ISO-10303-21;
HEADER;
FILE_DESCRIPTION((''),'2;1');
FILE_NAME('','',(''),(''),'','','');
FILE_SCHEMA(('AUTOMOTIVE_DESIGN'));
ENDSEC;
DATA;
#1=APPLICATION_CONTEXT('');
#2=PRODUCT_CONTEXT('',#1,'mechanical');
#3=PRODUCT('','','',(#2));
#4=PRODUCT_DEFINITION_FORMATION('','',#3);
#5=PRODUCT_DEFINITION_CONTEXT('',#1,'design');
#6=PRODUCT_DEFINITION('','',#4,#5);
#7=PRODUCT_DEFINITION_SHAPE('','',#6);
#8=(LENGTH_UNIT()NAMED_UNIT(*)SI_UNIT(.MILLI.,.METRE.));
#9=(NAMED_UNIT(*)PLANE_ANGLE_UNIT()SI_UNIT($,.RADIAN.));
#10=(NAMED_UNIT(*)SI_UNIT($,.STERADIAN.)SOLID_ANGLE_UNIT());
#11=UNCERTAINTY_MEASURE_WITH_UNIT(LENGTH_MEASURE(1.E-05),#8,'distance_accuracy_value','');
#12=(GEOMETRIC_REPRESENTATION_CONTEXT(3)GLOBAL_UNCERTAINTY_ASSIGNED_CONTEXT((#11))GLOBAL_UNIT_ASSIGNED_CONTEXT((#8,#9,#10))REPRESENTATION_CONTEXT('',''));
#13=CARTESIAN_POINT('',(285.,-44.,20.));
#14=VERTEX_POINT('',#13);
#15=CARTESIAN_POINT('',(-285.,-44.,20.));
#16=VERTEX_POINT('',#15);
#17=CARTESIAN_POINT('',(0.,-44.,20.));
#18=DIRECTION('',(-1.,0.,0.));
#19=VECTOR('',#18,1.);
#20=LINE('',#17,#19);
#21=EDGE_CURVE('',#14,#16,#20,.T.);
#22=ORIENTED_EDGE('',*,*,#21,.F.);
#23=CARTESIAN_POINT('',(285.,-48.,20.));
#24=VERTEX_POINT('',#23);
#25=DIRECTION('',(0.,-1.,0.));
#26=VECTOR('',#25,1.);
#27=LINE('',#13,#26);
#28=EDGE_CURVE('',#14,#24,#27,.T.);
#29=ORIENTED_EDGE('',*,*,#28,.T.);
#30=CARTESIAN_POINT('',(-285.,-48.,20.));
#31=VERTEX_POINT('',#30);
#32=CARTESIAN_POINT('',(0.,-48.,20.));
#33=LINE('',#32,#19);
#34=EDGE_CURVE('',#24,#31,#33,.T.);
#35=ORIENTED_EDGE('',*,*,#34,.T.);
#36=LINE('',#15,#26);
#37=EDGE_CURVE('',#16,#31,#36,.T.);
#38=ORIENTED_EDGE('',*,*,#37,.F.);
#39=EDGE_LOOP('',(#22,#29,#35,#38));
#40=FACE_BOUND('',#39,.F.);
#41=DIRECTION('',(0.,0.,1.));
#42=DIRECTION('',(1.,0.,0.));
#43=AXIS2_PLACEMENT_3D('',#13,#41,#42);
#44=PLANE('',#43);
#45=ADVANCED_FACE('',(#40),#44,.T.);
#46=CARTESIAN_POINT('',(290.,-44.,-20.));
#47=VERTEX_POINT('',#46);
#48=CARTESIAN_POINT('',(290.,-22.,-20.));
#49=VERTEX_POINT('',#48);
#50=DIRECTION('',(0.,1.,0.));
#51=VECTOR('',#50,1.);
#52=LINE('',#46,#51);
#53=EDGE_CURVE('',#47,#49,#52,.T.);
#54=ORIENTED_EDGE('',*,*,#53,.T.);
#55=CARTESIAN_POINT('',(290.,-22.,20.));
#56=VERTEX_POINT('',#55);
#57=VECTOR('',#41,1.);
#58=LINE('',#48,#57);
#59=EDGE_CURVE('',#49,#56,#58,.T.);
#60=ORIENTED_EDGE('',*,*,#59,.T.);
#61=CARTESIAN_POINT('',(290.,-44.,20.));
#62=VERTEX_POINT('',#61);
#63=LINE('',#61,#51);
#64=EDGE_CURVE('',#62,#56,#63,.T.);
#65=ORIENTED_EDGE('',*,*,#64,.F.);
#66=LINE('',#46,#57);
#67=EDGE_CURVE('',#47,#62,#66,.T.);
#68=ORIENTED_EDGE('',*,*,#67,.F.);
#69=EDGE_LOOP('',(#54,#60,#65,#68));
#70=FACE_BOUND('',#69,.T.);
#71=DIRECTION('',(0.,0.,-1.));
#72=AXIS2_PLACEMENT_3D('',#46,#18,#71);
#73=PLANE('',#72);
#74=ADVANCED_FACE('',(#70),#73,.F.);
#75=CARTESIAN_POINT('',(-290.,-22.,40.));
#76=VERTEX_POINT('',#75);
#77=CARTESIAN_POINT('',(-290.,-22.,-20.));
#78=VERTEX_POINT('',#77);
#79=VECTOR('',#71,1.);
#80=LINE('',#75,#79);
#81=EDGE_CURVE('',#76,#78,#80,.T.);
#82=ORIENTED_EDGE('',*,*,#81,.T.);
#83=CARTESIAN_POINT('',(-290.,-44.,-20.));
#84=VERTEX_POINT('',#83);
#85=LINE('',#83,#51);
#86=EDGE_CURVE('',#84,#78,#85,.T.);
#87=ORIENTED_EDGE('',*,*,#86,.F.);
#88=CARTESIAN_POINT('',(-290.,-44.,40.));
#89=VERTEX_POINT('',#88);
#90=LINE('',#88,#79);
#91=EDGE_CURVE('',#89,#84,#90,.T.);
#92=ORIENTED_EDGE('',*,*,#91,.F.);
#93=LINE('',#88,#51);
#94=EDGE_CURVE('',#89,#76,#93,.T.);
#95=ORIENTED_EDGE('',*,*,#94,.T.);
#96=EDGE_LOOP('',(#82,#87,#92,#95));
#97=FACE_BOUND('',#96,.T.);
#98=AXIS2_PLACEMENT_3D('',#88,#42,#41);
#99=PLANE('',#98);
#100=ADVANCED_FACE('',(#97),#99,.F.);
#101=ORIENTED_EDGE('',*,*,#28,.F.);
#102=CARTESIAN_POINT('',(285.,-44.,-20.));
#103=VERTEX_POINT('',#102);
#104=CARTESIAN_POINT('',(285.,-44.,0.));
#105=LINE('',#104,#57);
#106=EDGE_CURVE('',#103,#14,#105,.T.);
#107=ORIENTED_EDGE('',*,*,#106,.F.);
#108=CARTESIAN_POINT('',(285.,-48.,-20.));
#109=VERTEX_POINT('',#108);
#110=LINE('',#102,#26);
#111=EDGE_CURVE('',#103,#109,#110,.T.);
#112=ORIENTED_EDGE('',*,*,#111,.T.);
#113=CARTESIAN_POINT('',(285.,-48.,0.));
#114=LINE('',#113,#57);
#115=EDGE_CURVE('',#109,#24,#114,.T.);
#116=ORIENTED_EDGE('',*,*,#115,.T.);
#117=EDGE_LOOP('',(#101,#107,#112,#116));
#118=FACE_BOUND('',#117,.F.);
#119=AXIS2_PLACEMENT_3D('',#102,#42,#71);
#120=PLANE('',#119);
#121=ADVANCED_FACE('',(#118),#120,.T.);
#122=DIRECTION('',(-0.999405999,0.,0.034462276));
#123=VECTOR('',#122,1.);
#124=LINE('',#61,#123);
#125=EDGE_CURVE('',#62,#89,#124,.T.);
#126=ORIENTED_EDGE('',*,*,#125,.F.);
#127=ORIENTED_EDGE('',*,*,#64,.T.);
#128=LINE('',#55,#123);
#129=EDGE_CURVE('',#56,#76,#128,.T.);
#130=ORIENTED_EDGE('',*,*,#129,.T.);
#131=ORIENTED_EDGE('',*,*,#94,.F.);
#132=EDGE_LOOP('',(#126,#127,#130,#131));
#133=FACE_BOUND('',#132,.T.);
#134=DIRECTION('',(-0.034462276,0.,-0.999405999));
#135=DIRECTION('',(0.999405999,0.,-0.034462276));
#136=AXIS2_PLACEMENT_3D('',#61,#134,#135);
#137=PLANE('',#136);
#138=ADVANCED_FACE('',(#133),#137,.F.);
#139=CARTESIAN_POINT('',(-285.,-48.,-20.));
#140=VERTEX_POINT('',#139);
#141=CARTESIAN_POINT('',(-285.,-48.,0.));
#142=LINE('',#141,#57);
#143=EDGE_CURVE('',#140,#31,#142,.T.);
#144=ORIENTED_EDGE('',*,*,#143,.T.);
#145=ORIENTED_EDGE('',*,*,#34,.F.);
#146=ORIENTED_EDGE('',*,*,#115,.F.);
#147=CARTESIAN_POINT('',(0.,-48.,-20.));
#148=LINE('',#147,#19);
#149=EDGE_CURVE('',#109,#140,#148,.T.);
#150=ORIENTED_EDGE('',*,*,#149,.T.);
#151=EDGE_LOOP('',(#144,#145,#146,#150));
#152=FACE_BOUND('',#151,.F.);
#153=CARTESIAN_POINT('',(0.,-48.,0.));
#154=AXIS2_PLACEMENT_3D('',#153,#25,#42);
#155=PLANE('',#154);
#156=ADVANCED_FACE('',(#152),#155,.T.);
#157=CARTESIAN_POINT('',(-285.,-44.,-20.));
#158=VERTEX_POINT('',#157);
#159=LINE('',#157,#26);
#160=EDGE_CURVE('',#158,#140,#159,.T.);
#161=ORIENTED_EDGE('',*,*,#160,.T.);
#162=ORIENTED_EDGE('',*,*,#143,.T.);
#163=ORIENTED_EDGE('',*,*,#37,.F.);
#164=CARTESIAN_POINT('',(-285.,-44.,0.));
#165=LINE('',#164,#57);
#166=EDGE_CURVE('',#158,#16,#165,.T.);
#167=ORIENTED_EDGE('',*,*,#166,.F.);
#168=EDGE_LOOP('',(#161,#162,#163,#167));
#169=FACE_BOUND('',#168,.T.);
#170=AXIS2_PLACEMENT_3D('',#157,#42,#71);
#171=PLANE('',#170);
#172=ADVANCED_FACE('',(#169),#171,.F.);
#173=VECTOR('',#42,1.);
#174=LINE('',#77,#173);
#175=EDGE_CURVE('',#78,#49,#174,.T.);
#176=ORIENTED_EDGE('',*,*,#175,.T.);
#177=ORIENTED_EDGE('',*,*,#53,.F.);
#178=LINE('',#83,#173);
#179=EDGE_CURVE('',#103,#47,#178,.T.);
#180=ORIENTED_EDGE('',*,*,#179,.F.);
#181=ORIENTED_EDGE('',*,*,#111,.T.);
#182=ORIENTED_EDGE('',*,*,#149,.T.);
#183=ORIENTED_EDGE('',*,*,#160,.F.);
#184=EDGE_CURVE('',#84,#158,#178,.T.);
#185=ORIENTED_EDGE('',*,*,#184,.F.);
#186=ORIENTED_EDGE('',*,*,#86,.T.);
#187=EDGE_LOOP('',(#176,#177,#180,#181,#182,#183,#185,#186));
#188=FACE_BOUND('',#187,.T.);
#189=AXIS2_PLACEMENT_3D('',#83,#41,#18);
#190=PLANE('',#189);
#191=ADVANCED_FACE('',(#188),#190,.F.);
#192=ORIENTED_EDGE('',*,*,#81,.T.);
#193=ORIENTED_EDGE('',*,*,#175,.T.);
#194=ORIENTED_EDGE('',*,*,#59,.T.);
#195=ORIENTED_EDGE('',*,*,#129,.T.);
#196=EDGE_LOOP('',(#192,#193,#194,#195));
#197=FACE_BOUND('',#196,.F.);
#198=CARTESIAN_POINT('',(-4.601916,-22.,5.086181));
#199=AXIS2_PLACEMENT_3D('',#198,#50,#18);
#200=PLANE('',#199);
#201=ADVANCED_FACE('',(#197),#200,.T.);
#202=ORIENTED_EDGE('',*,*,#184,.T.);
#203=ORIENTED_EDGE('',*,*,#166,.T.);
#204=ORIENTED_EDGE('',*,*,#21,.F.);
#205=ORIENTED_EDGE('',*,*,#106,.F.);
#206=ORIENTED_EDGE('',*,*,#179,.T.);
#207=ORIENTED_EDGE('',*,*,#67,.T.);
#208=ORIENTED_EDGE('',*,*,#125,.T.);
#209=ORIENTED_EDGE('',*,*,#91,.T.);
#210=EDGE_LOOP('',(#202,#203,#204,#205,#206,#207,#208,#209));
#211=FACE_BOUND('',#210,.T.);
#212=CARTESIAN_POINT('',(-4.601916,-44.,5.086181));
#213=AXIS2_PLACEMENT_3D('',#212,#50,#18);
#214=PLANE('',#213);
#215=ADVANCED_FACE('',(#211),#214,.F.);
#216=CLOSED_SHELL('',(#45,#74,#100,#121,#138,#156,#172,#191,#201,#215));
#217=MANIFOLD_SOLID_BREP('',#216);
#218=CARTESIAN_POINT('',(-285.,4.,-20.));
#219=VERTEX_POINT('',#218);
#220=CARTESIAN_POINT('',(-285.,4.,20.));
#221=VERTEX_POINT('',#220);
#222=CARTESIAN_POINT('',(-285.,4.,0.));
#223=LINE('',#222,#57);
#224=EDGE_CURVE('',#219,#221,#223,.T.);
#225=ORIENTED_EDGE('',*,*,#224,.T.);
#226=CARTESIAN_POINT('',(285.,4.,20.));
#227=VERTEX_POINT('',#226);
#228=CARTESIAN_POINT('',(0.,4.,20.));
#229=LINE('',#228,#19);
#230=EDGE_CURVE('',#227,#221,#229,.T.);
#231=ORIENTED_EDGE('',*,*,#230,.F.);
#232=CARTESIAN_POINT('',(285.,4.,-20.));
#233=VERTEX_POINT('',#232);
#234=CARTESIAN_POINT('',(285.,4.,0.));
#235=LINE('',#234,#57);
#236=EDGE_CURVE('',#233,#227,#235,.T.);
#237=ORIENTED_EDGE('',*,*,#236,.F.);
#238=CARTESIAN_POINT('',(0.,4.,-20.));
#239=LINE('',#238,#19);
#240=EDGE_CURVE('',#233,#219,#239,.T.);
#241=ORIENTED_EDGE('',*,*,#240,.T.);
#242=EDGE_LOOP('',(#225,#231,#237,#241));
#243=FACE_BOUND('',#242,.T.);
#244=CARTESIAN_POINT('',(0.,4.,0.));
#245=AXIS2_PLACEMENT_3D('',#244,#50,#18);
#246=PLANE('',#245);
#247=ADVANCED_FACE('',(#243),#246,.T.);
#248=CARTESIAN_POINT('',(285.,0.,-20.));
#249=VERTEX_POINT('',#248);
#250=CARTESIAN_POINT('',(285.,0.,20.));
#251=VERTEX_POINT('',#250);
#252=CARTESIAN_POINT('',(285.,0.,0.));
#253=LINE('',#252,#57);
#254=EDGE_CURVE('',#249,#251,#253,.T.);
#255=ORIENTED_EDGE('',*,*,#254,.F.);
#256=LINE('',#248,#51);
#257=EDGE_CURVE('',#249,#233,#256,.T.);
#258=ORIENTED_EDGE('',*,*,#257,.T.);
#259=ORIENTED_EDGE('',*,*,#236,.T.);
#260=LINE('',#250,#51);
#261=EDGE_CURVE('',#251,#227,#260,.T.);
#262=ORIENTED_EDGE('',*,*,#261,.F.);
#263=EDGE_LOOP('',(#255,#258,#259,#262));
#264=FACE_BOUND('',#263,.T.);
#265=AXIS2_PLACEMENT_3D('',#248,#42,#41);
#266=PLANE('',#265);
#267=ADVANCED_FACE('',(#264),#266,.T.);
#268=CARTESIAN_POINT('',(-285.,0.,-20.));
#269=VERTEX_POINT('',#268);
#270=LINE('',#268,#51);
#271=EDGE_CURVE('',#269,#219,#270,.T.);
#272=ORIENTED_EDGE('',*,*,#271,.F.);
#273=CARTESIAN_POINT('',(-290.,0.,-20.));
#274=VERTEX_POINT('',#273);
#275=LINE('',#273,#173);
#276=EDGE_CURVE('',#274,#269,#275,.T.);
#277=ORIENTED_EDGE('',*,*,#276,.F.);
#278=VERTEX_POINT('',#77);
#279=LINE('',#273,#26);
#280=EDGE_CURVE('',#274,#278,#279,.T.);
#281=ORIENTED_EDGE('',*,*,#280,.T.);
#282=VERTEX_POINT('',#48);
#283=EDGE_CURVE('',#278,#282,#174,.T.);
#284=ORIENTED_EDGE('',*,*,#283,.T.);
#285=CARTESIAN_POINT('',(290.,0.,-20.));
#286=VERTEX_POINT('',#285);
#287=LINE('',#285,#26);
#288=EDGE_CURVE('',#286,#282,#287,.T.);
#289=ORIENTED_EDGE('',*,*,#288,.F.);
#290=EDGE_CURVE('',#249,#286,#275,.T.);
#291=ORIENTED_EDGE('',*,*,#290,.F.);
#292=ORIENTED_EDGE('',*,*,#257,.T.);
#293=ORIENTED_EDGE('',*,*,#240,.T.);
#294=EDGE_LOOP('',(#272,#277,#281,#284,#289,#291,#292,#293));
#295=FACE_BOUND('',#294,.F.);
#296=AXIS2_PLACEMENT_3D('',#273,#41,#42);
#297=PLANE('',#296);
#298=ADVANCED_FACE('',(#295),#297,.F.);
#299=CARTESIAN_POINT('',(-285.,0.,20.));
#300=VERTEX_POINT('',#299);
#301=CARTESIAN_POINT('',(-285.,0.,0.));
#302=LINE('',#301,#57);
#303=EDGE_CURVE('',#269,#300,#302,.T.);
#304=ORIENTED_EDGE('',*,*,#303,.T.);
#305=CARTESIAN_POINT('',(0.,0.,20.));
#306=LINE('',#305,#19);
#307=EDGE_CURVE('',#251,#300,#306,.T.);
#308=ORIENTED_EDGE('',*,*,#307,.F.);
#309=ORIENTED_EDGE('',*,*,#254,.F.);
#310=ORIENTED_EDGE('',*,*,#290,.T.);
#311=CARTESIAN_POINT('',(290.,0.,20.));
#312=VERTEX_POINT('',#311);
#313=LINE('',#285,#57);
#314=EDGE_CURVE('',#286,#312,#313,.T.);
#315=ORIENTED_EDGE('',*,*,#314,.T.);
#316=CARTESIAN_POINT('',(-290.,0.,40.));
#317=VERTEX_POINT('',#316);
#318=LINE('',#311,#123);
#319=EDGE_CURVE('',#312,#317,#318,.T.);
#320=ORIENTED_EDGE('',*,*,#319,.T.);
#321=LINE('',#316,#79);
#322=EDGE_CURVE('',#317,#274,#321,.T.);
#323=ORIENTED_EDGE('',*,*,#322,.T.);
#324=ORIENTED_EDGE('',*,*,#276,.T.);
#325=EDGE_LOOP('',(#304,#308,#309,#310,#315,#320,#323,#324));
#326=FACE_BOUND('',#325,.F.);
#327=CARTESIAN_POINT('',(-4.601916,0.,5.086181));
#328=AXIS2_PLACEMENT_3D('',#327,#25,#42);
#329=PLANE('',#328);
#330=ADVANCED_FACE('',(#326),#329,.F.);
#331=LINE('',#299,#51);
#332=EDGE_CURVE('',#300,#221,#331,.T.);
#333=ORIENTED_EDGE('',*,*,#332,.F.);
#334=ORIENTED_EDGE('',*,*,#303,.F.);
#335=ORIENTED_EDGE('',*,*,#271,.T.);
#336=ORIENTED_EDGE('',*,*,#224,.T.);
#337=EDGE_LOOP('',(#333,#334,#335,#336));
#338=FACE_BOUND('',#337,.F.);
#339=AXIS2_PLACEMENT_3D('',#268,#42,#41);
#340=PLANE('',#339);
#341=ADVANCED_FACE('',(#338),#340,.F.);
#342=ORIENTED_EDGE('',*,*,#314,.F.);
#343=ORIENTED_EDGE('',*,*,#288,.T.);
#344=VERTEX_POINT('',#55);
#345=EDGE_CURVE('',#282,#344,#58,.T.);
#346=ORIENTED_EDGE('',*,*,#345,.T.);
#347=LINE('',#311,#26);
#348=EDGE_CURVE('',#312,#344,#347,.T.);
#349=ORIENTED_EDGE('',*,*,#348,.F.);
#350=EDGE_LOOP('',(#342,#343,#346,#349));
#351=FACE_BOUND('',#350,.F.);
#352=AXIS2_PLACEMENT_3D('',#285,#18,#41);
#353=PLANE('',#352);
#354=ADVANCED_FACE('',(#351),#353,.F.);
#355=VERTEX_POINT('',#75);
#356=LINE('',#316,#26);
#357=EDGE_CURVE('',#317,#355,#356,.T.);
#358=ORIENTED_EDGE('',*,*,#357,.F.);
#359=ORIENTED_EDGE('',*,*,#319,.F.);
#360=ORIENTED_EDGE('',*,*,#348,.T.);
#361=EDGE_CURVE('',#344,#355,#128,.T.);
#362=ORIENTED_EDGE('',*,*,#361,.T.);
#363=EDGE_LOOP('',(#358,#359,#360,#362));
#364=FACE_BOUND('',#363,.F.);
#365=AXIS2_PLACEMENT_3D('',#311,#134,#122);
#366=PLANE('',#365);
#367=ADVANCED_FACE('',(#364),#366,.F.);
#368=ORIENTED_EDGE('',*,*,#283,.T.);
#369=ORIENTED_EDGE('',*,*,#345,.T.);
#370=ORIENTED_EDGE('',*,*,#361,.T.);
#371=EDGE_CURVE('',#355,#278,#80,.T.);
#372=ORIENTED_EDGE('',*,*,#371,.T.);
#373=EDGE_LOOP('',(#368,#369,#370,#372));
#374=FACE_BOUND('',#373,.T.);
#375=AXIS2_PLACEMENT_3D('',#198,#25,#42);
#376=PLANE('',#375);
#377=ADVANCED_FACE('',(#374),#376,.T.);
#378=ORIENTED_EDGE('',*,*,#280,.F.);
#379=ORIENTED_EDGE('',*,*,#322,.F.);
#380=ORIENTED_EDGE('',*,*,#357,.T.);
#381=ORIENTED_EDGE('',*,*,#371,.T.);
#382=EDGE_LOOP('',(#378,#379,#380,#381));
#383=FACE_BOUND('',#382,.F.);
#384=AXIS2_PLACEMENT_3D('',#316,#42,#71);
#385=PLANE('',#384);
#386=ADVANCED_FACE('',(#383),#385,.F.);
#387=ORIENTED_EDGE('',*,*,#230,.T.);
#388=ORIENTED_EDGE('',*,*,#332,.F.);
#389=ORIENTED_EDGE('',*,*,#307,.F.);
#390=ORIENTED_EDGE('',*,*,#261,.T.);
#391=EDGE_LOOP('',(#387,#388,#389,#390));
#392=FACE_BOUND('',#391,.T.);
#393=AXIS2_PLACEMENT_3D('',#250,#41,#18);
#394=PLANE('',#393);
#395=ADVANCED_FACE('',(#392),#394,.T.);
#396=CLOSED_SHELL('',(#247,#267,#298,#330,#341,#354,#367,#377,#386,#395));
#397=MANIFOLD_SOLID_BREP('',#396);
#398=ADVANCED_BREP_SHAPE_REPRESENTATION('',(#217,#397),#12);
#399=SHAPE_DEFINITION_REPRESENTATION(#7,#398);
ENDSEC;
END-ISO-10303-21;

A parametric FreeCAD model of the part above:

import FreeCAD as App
import Part
import Sketcher
Q = App.Units.Quantity


def add_polygon(sketch, points):
    """Adds a closed chain of lines whose ends are joined by coincident constraints."""
    first, n = sketch.GeometryCount, len(points)
    for a, b in zip(points, points[1:] + points[:1]):
        sketch.addGeometry(Part.LineSegment(App.Vector(*a, 0), App.Vector(*b, 0)), False)
    for i in range(n):
        sketch.addConstraint(Sketcher.Constraint("Coincident", first + i, 2, first + (i + 1) % n, 1))

doc = App.newDocument("Part")
params = doc.addObject("Spreadsheet::Sheet", "Params")
for row, (alias, value) in enumerate([
    ("sketch1_width", "580 mm"),
    ("sketch1_height", "60 mm"),
    ("sketch1_height2", "40 mm"),
    ("pad1_length", "22 mm"),
    ("sketch2_width", "570 mm"),
    ("sketch2_height", "40 mm"),
    ("pad2_length", "4 mm"),
], start=1):
    params.set(f"A{row}", alias)
    params.set(f"B{row}", "=" + value)
    params.setAlias(f"B{row}", alias)

body = doc.addObject("PartDesign::Body", "Body")

sketch1 = body.newObject("Sketcher::SketchObject", "Sketch")
sketch1.AttachmentSupport = (doc.getObject("XZ_Plane"), [""])
sketch1.MapMode = "FlatFace"
add_polygon(sketch1, [(290, 20), (-290, 40), (-290, -20), (290, -20)])
sketch1.addConstraint(Sketcher.Constraint("Vertical", 1))
sketch1.addConstraint(Sketcher.Constraint("Horizontal", 2))
sketch1.addConstraint(Sketcher.Constraint("Vertical", 3))
sketch1.addConstraint(Sketcher.Constraint("Symmetric", 1, 2, 3, 2, -1, 1))
sketch1.addConstraint(Sketcher.Constraint("DistanceX", 2, 1, 2, 2, Q("580 mm")))
sketch1.addConstraint(Sketcher.Constraint("DistanceY", 1, 2, 1, 1, Q("60 mm")))
sketch1.addConstraint(Sketcher.Constraint("DistanceY", 3, 1, 3, 2, Q("40 mm")))
sketch1.setExpression("Constraints[8]", "Params.sketch1_width")
sketch1.setExpression("Constraints[9]", "Params.sketch1_height")
sketch1.setExpression("Constraints[10]", "Params.sketch1_height2")
pad1 = body.newObject("PartDesign::Pad", "Pad")
pad1.Profile = sketch1
pad1.setExpression("Length", "Params.pad1_length")

sketch2 = body.newObject("Sketcher::SketchObject", "Sketch001")
sketch2.AttachmentSupport = (doc.getObject("XZ_Plane"), [""])
sketch2.MapMode = "FlatFace"
add_polygon(sketch2, [(285, 20), (285, -20), (-285, -20), (-285, 20)])
sketch2.addConstraint(Sketcher.Constraint("Vertical", 0))
sketch2.addConstraint(Sketcher.Constraint("Horizontal", 1))
sketch2.addConstraint(Sketcher.Constraint("Vertical", 2))
sketch2.addConstraint(Sketcher.Constraint("Horizontal", 3))
sketch2.addConstraint(Sketcher.Constraint("Symmetric", 0, 2, 2, 2, -1, 1))
sketch2.addConstraint(Sketcher.Constraint("DistanceX", 1, 2, 1, 1, Q("570 mm")))
sketch2.addConstraint(Sketcher.Constraint("DistanceY", 0, 2, 0, 1, Q("40 mm")))
sketch2.setExpression("Constraints[9]", "Params.sketch2_width")
sketch2.setExpression("Constraints[10]", "Params.sketch2_height")
pad2 = body.newObject("PartDesign::Pad", "Pad001")
pad2.Profile = sketch2
pad2.setExpression("Length", "Params.pad2_length")
pad2.Reversed = True
body2 = doc.addObject("PartDesign::Body", "Body001")
doc.recompute()

mirroring = doc.addObject("Part::Mirroring", "Mirroring")
mirroring.Source = body
mirroring.Base = App.Vector(-19.333333, -22, 5.333333)
mirroring.Normal = App.Vector(0, -1, 0)
body2.BaseFeature = mirroring
doc.recompute()
mirroring.Visibility = False

doc.recompute()
